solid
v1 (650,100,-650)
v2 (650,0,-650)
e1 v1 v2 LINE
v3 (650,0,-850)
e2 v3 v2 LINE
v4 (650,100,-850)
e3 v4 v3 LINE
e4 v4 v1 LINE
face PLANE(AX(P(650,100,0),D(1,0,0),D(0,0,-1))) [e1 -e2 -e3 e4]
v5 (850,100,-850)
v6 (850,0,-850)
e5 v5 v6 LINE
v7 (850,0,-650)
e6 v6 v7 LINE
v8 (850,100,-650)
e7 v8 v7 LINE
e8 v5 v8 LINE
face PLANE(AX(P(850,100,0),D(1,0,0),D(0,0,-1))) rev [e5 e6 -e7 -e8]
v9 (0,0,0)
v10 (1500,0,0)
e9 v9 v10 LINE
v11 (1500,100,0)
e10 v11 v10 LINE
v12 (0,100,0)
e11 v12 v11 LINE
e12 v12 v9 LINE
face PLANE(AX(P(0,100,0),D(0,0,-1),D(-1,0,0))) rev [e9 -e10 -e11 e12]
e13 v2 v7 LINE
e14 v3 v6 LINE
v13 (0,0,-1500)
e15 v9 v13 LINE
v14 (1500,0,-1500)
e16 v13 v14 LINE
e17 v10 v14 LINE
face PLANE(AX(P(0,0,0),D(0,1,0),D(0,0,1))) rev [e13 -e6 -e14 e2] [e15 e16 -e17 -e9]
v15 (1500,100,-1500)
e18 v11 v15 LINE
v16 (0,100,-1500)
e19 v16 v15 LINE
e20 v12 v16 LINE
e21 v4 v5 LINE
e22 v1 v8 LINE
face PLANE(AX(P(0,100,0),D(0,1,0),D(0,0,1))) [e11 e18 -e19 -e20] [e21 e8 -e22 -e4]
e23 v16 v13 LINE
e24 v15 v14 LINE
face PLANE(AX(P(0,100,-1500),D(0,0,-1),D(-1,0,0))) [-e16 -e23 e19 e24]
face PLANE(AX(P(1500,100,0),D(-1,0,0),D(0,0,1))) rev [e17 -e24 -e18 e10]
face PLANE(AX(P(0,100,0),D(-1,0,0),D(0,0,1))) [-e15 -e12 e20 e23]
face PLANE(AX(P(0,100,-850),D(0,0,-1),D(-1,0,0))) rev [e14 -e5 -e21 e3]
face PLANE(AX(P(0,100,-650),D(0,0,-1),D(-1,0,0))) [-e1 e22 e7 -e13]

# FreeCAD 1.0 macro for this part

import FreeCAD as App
import Part
import Sketcher


def add_polygon(sketch, points):
    """Adds a closed chain of lines whose ends are joined by coincident constraints."""
    first, n = sketch.GeometryCount, len(points)
    for a, b in zip(points, points[1:] + points[:1]):
        sketch.addGeometry(Part.LineSegment(App.Vector(*a, 0), App.Vector(*b, 0)), False)
    for i in range(n):
        sketch.addConstraint(Sketcher.Constraint("Coincident", first + i, 2, first + (i + 1) % n, 1))

doc = App.newDocument("Part")
body = doc.addObject("PartDesign::Body", "Body")

# Sketch on XZ plane
sketch1 = body.newObject("Sketcher::SketchObject", "Sketch")
sketch1.AttachmentSupport = (doc.getObject("XZ_Plane"), [""])
sketch1.MapMode = "FlatFace"
add_polygon(sketch1, [(0, -1500), (0, 0), (1500, 0), (1500, -1500)])  # lines 0-3
add_polygon(sketch1, [(850, -650), (650, -650), (650, -850), (850, -850)])  # lines 4-7
sketch1.addConstraint(Sketcher.Constraint("Vertical", 0))
sketch1.addConstraint(Sketcher.Constraint("Horizontal", 1))
sketch1.addConstraint(Sketcher.Constraint("Vertical", 2))
sketch1.addConstraint(Sketcher.Constraint("Horizontal", 3))
sketch1.addConstraint(Sketcher.Constraint("Horizontal", 4))
sketch1.addConstraint(Sketcher.Constraint("Vertical", 5))
sketch1.addConstraint(Sketcher.Constraint("Horizontal", 6))
sketch1.addConstraint(Sketcher.Constraint("Vertical", 7))
sketch1.addConstraint(Sketcher.Constraint("Coincident", 0, 2, -1, 1))
sketch1.addConstraint(Sketcher.Constraint("Equal", 3, 0))
sketch1.addConstraint(Sketcher.Constraint("Equal", 6, 5))
sketch1.addConstraint(Sketcher.Constraint("DistanceX", 1, 1, 1, 2, 1500.0))
sketch1.addConstraint(Sketcher.Constraint("DistanceX", 4, 2, 4, 1, 200.0))
sketch1.addConstraint(Sketcher.Constraint("DistanceX", -1, 1, 4, 2, 650.0))
sketch1.addConstraint(Sketcher.Constraint("DistanceY", 4, 2, -1, 1, 650.0))
pad1 = body.newObject("PartDesign::Pad", "Pad")
pad1.Profile = sketch1
pad1.Length = 100
pad1.Reversed = True

doc.recompute()
